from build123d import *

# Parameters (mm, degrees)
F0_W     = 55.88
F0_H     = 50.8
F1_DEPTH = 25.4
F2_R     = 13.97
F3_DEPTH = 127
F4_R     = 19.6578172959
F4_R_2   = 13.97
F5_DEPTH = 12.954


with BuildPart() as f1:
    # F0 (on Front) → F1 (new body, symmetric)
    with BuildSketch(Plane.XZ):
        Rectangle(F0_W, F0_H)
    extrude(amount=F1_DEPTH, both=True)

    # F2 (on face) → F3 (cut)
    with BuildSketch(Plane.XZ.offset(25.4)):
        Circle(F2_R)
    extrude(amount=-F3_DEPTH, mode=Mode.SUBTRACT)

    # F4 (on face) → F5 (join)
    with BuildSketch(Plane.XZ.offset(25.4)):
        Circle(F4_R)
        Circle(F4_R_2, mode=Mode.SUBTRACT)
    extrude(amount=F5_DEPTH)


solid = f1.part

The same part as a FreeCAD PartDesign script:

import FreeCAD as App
import Part
import Sketcher
from FreeCAD import Vector
Q = App.Units.Quantity


def add_polygon(sketch, points):
    """Adds a closed chain of lines whose ends are joined by coincident constraints."""
    first, n = sketch.GeometryCount, len(points)
    for a, b in zip(points, points[1:] + points[:1]):
        sketch.addGeometry(Part.LineSegment(App.Vector(*a, 0), App.Vector(*b, 0)), False)
    for i in range(n):
        sketch.addConstraint(Sketcher.Constraint("Coincident", first + i, 2, first + (i + 1) % n, 1))

doc = App.newDocument("Part")
body = doc.addObject("PartDesign::Body", "Body")

# Sketch on XZ plane
sketch1 = body.newObject("Sketcher::SketchObject", "Sketch")
sketch1.AttachmentSupport = (doc.getObject("XZ_Plane"), [""])
sketch1.MapMode = "FlatFace"
add_polygon(sketch1, [(-28, 25), (-28, -25), (28, -25), (28, 25)])  # lines 0-3
sketch1.addConstraint(Sketcher.Constraint("Vertical", 0))
sketch1.addConstraint(Sketcher.Constraint("Horizontal", 1))
sketch1.addConstraint(Sketcher.Constraint("Vertical", 2))
sketch1.addConstraint(Sketcher.Constraint("Horizontal", 3))
sketch1.addConstraint(Sketcher.Constraint("Symmetric", 0, 2, 2, 2, -1, 1))
sketch1.addConstraint(Sketcher.Constraint("DistanceY", 0, 2, 0, 1, Q("2 in")))
sketch1.addConstraint(Sketcher.Constraint("DistanceX", 1, 1, 1, 2, Q("2.2 in")))
pad1 = body.newObject("PartDesign::Pad", "Pad")
pad1.Profile = sketch1
pad1.Length = Q("2 in")
pad1.Midplane = True

# Sketch on XZ plane
sketch2 = body.newObject("Sketcher::SketchObject", "Sketch001")
sketch2.AttachmentSupport = (doc.getObject("XZ_Plane"), [""])
sketch2.MapMode = "FlatFace"
sketch2.AttachmentOffset = App.Placement(Vector(0, 0, 1 * 25.4), App.Rotation())
sketch2.addGeometry(Part.Circle(Vector(0, 0, 0), Vector(0, 0, 1), 14), False)
sketch2.addConstraint(Sketcher.Constraint("Coincident", 0, 3, -1, 1))
sketch2.addConstraint(Sketcher.Constraint("Diameter", 0, Q("1.1 in")))
pocket1 = body.newObject("PartDesign::Pocket", "Pocket")
pocket1.Profile = sketch2
pocket1.Length = Q("5 in")

# Sketch on XZ plane
sketch3 = body.newObject("Sketcher::SketchObject", "Sketch002")
sketch3.AttachmentSupport = (doc.getObject("XZ_Plane"), [""])
sketch3.MapMode = "FlatFace"
sketch3.AttachmentOffset = App.Placement(Vector(0, 0, 1 * 25.4), App.Rotation())
sketch3.addGeometry(Part.Circle(Vector(0, 0, 0), Vector(0, 0, 1), 20), False)
sketch3.addGeometry(Part.Circle(Vector(0, 0, 0), Vector(0, 0, 1), 14), False)
sketch3.addConstraint(Sketcher.Constraint("Coincident", 0, 3, -1, 1))
sketch3.addConstraint(Sketcher.Constraint("Coincident", 1, 3, -1, 1))
sketch3.addConstraint(Sketcher.Constraint("Diameter", 1, Q("1.1 in")))
sketch3.addConstraint(Sketcher.Constraint("Diameter", 0, Q("39.315635 mm")))
pad2 = body.newObject("PartDesign::Pad", "Pad001")
pad2.Profile = sketch3
pad2.Length = Q("0.51 in")

doc.recompute()
